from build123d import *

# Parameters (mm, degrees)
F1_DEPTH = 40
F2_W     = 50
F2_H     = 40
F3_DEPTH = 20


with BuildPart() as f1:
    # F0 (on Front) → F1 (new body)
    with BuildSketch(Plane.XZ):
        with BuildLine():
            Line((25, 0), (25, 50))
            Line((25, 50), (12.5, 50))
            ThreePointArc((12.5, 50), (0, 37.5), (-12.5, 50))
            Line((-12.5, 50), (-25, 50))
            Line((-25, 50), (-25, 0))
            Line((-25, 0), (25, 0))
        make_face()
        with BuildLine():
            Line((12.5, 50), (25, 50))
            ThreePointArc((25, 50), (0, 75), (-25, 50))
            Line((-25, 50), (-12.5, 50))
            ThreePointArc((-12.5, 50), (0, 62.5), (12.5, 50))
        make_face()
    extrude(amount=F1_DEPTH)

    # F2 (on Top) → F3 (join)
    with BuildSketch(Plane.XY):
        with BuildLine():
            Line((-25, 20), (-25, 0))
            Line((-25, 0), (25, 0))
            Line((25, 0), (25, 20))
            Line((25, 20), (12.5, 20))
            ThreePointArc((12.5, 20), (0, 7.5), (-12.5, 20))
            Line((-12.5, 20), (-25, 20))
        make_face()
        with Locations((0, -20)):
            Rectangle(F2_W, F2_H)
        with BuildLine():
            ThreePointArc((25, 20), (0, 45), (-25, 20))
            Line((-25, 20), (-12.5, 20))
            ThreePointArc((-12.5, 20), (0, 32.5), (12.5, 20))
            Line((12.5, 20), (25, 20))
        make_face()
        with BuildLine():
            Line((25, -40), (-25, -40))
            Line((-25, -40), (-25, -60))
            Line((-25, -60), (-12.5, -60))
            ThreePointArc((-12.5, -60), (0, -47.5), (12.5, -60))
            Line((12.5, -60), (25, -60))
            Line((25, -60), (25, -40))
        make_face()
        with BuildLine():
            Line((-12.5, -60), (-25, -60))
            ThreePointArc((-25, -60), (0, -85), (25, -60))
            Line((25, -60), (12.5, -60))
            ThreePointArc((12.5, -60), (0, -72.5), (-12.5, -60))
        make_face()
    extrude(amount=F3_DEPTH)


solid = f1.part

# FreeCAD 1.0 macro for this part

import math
import FreeCAD as App
import Part
import Sketcher

V = App.Vector
Q = App.Units.Quantity

doc = App.newDocument("Part")
body = doc.addObject("PartDesign::Body", "Body")

sketch1 = body.newObject("Sketcher::SketchObject", "Sketch")
sketch1.AttachmentSupport = (doc.getObject("XZ_Plane"), [""])
sketch1.MapMode = "FlatFace"
sketch1.addGeometry([
    Part.LineSegment(V(25, 0, 0), V(25, 50, 0)),
    Part.ArcOfCircle(Part.Circle(V(0, 50, 0), V(0, 0, 1), 25), math.radians(0), math.radians(180)),
    Part.LineSegment(V(-25, 50, 0), V(-25, 0, 0)),
    Part.LineSegment(V(-25, 0, 0), V(25, 0, 0)),
    Part.Circle(V(0, 50, 0), V(0, 0, 1), 12.5),
], False)
sketch1.addConstraint([
    Sketcher.Constraint("Tangent", 0, 2, 1, 1),
    Sketcher.Constraint("Tangent", 1, 2, 2, 1),
    Sketcher.Constraint("Coincident", 2, 2, 3, 1),
    Sketcher.Constraint("Coincident", 3, 2, 0, 1),
    Sketcher.Constraint("Vertical", 0),
    Sketcher.Constraint("Vertical", 2),
    Sketcher.Constraint("Horizontal", 3),
    Sketcher.Constraint("Coincident", 4, 3, 1, 3),
    Sketcher.Constraint("Symmetric", 2, 2, 3, 2, -1, 1),
    Sketcher.Constraint("Equal", 3, 0),
    Sketcher.Constraint("Diameter", 4, Q("25 mm")),
    Sketcher.Constraint("Radius", 1, Q("25 mm")),
])
pad1 = body.newObject("PartDesign::Pad", "Pad")
pad1.Profile = sketch1
pad1.Length = 40

sketch2 = body.newObject("Sketcher::SketchObject", "Sketch001")
sketch2.AttachmentSupport = (doc.getObject("XY_Plane"), [""])
sketch2.MapMode = "FlatFace"
sketch2.addGeometry([
    Part.LineSegment(V(-25, 20, 0), V(-25, -60, 0)),
    Part.ArcOfCircle(Part.Circle(V(0, -60, 0), V(0, 0, 1), 25), math.radians(180), math.radians(360)),
    Part.LineSegment(V(25, -60, 0), V(25, 20, 0)),
    Part.ArcOfCircle(Part.Circle(V(0, 20, 0), V(0, 0, 1), 25), math.radians(0), math.radians(180)),
    Part.Circle(V(0, -60, 0), V(0, 0, 1), 12.5),
    Part.Circle(V(0, 20, 0), V(0, 0, 1), 12.5),
], False)
sketch2.addConstraint([
    Sketcher.Constraint("Tangent", 0, 2, 1, 1),
    Sketcher.Constraint("Tangent", 1, 2, 2, 1),
    Sketcher.Constraint("Tangent", 2, 2, 3, 1),
    Sketcher.Constraint("Tangent", 3, 2, 0, 1),
    Sketcher.Constraint("Vertical", 0),
    Sketcher.Constraint("Vertical", 2),
    Sketcher.Constraint("Coincident", 4, 3, 1, 3),
    Sketcher.Constraint("Coincident", 5, 3, 3, 3),
    Sketcher.Constraint("Equal", 4, 5),
    Sketcher.Constraint("PointOnObject", 1, 3, -2),
    Sketcher.Constraint("Diameter", 4, Q("25 mm")),
    Sketcher.Constraint("Radius", 1, Q("25 mm")),
    Sketcher.Constraint("DistanceY", 0, 2, 0, 1, Q("80 mm")),
    Sketcher.Constraint("DistanceY", 1, 3, -1, 1, Q("60 mm")),
])
pad2 = body.newObject("PartDesign::Pad", "Pad001")
pad2.Profile = sketch2
pad2.Length = 20

doc.recompute()
